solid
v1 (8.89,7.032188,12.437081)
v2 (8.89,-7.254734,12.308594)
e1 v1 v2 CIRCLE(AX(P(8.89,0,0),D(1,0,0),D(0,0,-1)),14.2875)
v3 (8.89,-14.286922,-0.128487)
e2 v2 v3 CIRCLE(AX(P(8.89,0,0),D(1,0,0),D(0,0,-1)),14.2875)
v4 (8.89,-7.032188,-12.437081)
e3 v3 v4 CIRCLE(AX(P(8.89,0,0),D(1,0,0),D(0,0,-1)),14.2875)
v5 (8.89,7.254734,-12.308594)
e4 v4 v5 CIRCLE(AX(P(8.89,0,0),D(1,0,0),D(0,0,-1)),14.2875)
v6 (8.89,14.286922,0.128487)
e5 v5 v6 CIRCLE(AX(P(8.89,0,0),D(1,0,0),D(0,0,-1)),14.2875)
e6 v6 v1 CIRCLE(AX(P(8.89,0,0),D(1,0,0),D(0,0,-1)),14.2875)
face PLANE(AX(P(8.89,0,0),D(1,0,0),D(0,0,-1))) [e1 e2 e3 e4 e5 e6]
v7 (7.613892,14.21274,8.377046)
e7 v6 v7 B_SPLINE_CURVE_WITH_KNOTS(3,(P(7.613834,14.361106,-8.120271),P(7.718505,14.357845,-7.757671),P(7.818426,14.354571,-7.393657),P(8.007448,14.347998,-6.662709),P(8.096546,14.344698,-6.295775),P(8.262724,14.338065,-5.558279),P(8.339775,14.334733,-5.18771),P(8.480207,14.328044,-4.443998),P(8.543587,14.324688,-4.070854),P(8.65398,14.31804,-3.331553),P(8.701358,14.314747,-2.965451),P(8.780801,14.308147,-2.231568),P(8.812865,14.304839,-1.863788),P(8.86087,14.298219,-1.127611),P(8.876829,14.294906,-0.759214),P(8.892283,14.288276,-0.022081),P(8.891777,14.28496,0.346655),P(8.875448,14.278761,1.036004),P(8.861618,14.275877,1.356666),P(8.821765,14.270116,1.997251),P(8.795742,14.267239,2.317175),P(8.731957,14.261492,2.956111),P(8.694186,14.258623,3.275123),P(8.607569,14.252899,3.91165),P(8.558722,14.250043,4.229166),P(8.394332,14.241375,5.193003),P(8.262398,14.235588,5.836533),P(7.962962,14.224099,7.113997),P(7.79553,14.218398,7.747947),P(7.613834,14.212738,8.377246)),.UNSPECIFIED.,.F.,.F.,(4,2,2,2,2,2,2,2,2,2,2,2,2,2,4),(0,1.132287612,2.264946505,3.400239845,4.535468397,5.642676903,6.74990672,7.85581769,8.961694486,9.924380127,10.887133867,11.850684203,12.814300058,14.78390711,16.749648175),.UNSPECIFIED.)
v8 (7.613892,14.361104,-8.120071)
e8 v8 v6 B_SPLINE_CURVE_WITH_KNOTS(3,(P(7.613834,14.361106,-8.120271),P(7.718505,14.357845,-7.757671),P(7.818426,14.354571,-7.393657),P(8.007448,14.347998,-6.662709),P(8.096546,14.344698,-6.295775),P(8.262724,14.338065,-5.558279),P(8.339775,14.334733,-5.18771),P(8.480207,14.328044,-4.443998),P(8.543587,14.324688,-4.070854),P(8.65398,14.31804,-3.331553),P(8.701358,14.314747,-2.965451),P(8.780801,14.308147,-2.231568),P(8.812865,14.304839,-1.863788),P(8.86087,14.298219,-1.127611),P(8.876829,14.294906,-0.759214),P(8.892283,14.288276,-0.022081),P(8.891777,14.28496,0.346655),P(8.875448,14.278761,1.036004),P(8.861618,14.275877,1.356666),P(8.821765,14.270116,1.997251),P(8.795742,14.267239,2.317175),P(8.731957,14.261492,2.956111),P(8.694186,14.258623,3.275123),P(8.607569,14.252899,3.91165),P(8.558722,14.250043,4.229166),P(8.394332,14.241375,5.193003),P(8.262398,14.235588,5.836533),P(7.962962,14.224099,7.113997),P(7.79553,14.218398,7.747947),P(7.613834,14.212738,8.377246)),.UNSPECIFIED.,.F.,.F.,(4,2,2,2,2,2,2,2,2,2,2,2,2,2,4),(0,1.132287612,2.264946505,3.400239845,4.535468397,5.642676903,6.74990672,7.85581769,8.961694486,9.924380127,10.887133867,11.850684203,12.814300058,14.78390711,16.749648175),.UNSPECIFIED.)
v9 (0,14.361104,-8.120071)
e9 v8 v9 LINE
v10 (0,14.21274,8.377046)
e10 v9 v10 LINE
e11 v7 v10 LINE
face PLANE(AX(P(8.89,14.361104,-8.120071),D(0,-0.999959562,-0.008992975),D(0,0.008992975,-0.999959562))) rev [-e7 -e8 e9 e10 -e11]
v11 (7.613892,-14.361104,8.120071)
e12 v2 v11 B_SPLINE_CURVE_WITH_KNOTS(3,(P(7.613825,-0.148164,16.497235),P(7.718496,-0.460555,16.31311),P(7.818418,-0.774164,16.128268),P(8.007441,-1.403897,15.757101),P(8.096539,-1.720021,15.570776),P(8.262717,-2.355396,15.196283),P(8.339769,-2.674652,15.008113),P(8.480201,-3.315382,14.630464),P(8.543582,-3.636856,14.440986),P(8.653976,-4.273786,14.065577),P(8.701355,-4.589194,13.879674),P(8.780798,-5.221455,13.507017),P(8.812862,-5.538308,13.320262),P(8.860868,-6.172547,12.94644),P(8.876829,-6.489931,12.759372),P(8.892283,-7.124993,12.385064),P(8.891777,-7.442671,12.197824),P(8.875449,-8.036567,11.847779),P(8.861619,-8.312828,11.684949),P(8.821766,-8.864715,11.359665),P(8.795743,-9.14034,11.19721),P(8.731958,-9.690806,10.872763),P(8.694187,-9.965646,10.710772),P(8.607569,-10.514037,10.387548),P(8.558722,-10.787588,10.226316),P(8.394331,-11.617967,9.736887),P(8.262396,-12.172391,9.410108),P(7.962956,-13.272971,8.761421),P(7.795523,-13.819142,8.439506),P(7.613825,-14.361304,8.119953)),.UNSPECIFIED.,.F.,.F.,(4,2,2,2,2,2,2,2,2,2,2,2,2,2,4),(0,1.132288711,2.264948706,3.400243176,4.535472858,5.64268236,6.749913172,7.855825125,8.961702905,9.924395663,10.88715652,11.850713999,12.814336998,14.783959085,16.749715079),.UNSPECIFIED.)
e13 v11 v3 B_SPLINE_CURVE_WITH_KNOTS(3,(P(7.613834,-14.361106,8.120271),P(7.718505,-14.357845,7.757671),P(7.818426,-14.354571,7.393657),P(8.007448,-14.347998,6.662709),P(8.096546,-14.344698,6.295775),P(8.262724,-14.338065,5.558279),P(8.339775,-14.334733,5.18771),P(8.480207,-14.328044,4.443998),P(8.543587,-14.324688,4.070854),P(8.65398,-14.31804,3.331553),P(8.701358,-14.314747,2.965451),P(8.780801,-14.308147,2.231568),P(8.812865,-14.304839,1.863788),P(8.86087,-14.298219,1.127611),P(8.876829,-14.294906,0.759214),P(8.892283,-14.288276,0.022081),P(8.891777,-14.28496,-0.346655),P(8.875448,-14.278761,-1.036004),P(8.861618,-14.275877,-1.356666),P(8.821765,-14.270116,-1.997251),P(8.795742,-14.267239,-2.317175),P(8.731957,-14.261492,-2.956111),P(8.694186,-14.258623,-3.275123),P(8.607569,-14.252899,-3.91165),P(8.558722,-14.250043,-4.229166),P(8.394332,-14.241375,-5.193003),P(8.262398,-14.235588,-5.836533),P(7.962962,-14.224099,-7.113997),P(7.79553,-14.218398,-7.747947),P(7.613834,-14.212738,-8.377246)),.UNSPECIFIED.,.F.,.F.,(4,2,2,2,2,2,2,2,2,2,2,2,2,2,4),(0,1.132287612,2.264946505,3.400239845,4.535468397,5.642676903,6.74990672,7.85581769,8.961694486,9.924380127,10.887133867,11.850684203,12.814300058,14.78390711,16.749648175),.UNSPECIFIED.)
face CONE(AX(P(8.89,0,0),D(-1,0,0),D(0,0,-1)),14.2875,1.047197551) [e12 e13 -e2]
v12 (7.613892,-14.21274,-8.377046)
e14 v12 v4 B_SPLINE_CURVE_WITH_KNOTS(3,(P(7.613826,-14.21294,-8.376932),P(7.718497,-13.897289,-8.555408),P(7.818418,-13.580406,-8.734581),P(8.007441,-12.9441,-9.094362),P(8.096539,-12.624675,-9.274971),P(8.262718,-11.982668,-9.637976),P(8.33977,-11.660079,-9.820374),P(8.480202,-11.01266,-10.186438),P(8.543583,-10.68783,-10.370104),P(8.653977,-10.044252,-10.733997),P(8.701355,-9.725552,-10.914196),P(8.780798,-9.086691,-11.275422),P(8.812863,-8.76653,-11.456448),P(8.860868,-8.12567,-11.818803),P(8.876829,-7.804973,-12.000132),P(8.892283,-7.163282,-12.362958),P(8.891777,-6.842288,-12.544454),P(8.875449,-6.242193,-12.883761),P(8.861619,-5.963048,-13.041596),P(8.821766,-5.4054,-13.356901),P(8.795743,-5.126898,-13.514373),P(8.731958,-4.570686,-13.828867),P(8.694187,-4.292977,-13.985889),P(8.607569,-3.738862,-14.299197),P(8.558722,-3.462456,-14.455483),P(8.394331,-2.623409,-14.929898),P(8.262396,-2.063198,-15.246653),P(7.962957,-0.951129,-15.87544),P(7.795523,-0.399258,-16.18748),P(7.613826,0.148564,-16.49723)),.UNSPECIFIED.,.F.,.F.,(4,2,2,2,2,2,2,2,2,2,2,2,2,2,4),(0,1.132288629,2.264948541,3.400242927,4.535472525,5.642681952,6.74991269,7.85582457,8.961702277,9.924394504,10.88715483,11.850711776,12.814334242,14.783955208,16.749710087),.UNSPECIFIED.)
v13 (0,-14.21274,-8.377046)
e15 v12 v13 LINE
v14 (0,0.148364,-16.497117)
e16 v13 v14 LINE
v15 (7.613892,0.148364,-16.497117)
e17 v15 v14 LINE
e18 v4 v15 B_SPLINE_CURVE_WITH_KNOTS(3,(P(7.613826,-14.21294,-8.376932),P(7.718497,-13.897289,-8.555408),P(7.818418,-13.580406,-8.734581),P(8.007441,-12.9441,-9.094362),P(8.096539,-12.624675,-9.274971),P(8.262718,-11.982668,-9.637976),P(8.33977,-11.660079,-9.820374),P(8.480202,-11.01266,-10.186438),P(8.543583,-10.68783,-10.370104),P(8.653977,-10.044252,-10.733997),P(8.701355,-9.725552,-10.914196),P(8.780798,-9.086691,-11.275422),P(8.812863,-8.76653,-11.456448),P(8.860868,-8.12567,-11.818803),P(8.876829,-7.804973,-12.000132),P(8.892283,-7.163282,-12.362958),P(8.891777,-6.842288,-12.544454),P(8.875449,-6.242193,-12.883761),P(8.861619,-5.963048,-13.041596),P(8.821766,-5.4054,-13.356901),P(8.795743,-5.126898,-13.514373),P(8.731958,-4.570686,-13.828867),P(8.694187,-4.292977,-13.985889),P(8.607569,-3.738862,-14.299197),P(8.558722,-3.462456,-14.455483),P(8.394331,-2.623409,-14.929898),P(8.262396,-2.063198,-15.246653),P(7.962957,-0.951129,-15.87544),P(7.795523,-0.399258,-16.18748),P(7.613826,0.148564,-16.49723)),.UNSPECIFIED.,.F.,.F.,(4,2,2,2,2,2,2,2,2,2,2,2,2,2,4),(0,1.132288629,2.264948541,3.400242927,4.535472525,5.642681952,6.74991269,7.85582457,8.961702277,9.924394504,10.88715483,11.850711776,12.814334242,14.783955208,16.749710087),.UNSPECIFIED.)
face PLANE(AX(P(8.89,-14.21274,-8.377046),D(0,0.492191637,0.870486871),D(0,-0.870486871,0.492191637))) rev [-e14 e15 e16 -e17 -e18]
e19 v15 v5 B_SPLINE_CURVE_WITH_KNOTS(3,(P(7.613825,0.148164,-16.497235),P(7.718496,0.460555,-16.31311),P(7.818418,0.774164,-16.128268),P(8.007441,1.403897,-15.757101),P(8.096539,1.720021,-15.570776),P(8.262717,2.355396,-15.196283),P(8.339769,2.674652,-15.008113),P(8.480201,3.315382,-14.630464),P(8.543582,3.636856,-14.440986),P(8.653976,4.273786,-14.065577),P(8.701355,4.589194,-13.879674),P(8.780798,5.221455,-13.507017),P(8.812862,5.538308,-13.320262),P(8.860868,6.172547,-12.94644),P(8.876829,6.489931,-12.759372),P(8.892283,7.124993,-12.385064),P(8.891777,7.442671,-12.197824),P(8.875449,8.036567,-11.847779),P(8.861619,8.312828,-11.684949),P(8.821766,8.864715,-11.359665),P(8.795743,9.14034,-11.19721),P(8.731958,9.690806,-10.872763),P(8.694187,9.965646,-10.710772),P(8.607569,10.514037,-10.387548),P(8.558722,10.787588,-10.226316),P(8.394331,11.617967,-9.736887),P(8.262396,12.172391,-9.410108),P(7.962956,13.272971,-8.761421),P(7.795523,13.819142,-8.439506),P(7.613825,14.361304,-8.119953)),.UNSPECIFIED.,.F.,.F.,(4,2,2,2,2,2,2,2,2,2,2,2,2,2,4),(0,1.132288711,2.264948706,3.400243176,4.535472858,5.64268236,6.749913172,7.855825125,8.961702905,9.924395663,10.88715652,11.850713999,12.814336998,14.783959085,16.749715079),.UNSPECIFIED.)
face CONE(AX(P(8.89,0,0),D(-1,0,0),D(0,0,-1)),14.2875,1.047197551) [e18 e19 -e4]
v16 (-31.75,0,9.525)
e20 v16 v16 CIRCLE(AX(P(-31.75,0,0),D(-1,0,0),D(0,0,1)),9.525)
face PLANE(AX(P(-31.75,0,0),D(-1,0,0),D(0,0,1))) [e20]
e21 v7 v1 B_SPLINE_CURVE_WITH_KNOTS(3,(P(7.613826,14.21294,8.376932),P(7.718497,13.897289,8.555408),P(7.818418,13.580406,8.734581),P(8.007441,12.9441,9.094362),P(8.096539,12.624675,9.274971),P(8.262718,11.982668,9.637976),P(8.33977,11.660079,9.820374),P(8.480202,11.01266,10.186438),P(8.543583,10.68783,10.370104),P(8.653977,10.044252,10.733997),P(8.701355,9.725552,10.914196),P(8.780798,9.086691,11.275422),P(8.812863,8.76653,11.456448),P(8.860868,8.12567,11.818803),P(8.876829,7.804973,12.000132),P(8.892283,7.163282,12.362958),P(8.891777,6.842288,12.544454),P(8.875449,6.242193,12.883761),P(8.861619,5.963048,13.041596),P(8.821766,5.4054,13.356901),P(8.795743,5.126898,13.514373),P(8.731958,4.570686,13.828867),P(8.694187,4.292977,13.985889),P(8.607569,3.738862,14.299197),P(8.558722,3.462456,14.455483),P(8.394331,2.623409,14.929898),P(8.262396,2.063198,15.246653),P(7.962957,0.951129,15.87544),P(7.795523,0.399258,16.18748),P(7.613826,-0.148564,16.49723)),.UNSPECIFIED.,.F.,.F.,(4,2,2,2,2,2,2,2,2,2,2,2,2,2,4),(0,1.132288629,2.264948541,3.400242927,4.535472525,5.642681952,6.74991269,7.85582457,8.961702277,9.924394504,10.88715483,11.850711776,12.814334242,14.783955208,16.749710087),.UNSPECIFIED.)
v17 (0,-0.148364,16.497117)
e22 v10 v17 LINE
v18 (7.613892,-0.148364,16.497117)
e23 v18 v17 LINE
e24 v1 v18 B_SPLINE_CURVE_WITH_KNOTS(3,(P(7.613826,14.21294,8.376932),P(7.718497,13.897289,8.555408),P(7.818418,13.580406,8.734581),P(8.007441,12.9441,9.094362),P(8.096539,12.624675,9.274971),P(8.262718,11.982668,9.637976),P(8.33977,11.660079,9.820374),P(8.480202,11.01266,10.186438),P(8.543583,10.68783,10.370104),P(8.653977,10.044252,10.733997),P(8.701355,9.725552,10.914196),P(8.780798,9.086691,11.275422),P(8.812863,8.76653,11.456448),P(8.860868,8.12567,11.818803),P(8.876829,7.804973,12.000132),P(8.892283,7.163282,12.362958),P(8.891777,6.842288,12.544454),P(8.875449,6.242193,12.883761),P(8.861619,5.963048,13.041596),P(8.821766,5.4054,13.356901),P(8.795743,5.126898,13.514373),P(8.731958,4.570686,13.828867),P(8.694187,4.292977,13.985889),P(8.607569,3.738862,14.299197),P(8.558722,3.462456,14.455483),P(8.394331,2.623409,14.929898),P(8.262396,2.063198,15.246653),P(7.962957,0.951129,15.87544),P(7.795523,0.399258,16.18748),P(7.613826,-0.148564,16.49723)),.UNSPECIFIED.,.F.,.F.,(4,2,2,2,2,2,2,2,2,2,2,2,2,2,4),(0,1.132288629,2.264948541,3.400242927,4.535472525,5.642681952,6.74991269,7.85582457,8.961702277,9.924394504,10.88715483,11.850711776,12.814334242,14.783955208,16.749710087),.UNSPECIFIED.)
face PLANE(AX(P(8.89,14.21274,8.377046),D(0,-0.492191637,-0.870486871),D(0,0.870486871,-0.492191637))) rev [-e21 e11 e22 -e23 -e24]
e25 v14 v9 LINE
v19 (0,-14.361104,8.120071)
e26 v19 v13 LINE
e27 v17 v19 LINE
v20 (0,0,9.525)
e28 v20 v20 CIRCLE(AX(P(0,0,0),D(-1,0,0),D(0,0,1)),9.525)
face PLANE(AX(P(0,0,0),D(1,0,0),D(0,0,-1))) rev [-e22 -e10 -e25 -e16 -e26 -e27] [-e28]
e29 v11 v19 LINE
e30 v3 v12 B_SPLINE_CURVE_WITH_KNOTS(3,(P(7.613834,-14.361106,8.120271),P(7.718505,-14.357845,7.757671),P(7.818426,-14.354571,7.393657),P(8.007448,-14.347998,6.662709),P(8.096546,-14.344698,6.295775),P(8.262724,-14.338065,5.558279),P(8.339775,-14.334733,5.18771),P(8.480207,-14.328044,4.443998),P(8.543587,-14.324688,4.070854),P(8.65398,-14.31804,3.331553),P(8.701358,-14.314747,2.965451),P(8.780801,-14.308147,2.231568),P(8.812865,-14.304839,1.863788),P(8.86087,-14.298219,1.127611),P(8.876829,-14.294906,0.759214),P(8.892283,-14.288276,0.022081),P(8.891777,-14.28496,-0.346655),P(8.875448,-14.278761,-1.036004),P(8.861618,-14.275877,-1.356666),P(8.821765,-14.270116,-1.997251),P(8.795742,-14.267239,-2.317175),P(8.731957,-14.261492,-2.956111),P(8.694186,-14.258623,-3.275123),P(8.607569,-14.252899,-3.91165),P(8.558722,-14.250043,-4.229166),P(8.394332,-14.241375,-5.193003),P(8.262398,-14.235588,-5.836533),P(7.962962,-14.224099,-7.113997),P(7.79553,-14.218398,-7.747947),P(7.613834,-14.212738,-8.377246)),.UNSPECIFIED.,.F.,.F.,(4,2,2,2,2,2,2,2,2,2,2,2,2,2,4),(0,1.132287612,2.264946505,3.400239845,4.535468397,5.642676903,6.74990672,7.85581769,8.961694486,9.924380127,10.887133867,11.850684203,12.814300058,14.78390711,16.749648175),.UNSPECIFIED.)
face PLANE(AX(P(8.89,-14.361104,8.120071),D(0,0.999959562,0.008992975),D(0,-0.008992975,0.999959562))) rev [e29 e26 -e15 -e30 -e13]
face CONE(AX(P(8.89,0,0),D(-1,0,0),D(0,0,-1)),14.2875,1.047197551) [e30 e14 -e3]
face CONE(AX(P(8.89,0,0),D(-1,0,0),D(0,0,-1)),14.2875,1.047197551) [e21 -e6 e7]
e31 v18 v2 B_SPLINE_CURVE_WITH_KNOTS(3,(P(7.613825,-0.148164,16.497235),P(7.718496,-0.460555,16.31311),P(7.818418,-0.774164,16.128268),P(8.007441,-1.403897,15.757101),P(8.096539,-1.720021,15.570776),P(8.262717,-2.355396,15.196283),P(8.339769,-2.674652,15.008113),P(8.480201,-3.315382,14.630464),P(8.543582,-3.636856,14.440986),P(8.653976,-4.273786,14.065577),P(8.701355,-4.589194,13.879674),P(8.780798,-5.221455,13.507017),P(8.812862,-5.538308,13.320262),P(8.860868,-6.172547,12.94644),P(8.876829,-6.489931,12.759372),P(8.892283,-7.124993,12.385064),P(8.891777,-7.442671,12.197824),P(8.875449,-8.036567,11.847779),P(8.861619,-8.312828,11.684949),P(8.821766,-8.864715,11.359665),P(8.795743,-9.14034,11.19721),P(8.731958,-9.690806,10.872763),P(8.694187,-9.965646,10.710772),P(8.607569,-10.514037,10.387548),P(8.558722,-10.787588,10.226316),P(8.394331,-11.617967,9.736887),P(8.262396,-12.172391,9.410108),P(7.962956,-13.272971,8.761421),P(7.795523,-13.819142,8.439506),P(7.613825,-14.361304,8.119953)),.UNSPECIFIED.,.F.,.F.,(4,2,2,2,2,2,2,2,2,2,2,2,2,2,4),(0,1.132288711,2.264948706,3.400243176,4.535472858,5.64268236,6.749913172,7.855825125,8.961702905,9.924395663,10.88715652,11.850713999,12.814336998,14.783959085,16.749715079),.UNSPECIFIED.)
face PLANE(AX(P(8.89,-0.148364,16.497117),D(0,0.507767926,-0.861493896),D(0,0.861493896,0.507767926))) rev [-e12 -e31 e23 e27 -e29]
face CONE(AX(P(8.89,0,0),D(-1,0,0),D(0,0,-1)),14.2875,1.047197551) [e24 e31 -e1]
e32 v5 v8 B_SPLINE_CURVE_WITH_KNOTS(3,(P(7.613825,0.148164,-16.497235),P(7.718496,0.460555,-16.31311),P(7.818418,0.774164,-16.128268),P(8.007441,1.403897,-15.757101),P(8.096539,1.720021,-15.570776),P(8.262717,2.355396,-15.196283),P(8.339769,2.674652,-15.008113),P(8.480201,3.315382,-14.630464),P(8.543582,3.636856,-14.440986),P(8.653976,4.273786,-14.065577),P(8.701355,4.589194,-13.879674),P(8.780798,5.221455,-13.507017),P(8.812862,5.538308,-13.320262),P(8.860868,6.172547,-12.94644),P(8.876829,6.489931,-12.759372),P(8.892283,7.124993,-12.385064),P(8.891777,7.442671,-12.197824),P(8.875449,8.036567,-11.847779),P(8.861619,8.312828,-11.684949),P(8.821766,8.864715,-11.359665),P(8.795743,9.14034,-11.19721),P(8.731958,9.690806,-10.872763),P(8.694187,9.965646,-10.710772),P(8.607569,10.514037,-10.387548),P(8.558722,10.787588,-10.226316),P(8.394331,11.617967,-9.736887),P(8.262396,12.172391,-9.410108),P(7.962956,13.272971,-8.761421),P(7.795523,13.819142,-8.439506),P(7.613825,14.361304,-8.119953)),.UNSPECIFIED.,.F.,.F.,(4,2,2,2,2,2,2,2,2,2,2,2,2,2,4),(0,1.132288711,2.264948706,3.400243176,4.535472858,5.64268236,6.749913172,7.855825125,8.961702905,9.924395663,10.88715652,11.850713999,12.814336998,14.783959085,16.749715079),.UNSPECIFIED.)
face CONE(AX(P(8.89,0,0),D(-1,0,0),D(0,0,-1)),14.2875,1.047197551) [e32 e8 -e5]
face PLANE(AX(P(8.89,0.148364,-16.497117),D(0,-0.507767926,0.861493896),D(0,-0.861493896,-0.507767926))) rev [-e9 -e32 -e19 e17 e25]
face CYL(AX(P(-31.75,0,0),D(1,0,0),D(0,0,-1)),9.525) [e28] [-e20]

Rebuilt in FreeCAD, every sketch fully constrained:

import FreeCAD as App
import Part
import Sketcher
Q = App.Units.Quantity


def add_polygon(sketch, points):
    """Adds a closed chain of lines whose ends are joined by coincident constraints."""
    first, n = sketch.GeometryCount, len(points)
    for a, b in zip(points, points[1:] + points[:1]):
        sketch.addGeometry(Part.LineSegment(App.Vector(*a, 0), App.Vector(*b, 0)), False)
    for i in range(n):
        sketch.addConstraint(Sketcher.Constraint("Coincident", first + i, 2, first + (i + 1) % n, 1))

doc = App.newDocument("Part")
body = doc.addObject("PartDesign::Body", "Body")

sketch1 = body.newObject("Sketcher::SketchObject", "Sketch")
sketch1.AttachmentSupport = (doc.getObject("YZ_Plane"), [""])
sketch1.MapMode = "FlatFace"
add_polygon(sketch1, [(-14.21274, -8.377046), (0.148364, -16.497117), (14.361104, -8.120071), (14.21274, 8.377046), (-0.148364, 16.497117), (-14.361104, 8.120071)])
sketch1.addConstraint(Sketcher.Constraint("Symmetric", 0, 2, 3, 2, -1, 1))
sketch1.addConstraint(Sketcher.Constraint("Symmetric", 1, 2, 4, 2, -1, 1))
sketch1.addConstraint(Sketcher.Constraint("Symmetric", 2, 2, 5, 2, -1, 1))
sketch1.addConstraint(Sketcher.Constraint("Equal", 0, 1))
sketch1.addConstraint(Sketcher.Constraint("Equal", 1, 2))
sketch1.addConstraint(Sketcher.Constraint("DistanceY", 1, 2, -1, 1, Q("8.120071 mm")))
sketch1.addConstraint(Sketcher.Constraint("DistanceX", -1, 1, 2, 2, Q("14.21274 mm")))
sketch1.addConstraint(Sketcher.Constraint("DistanceX", 0, 2, 1, 2, Q("14.21274 mm")))
sketch1.addConstraint(Sketcher.Constraint("DistanceY", 2, 2, 3, 2, Q("8.120071 mm")))
pad1 = body.newObject("PartDesign::Pad", "Pad")
pad1.Profile = sketch1
pad1.Length = Q("0.35 in")

sketch2 = body.newObject("Sketcher::SketchObject", "Sketch001")
sketch2.AttachmentSupport = (doc.getObject("YZ_Plane"), [""])
sketch2.MapMode = "FlatFace"
sketch2.AttachmentOffset = App.Placement(App.Vector(0, 0, 0.35 * 25.4), App.Rotation())
add_polygon(sketch2, [(28.624, 30.76), (-28.624, 30.76), (-28.624, -30.76), (28.624, -30.76)])
sketch2.addGeometry(Part.Circle(App.Vector(0, 0, 0), App.Vector(0, 0, 1), 14.2875), False)
sketch2.addConstraint(Sketcher.Constraint("Horizontal", 0))
sketch2.addConstraint(Sketcher.Constraint("Vertical", 1))
sketch2.addConstraint(Sketcher.Constraint("Horizontal", 2))
sketch2.addConstraint(Sketcher.Constraint("Vertical", 3))
sketch2.addConstraint(Sketcher.Constraint("Coincident", 4, 3, -1, 1))
sketch2.addConstraint(Sketcher.Constraint("Symmetric", 0, 2, 2, 2, -1, 1))
sketch2.addConstraint(Sketcher.Constraint("Diameter", 4, Q("1.125 in")))
sketch2.addConstraint(Sketcher.Constraint("DistanceX", 0, 2, 0, 1, Q("57.248 mm")))
sketch2.addConstraint(Sketcher.Constraint("DistanceY", 1, 2, 1, 1, Q("61.52 mm")))
pocket1 = body.newObject("PartDesign::Pocket", "Pocket")
pocket1.Profile = sketch2
pocket1.Length = Q("0.2 in")
pocket1.TaperAngle = 60

sketch3 = body.newObject("Sketcher::SketchObject", "Sketch002")
sketch3.AttachmentSupport = (doc.getObject("YZ_Plane"), [""])
sketch3.MapMode = "FlatFace"
sketch3.addGeometry(Part.Circle(App.Vector(0, 0, 0), App.Vector(0, 0, 1), 9.525), False)
sketch3.addConstraint(Sketcher.Constraint("Coincident", 0, 3, -1, 1))
sketch3.addConstraint(Sketcher.Constraint("Diameter", 0, Q("0.75 in")))
pad2 = body.newObject("PartDesign::Pad", "Pad001")
pad2.Profile = sketch3
pad2.Length = Q("1.25 in")
pad2.Reversed = True

doc.recompute()
